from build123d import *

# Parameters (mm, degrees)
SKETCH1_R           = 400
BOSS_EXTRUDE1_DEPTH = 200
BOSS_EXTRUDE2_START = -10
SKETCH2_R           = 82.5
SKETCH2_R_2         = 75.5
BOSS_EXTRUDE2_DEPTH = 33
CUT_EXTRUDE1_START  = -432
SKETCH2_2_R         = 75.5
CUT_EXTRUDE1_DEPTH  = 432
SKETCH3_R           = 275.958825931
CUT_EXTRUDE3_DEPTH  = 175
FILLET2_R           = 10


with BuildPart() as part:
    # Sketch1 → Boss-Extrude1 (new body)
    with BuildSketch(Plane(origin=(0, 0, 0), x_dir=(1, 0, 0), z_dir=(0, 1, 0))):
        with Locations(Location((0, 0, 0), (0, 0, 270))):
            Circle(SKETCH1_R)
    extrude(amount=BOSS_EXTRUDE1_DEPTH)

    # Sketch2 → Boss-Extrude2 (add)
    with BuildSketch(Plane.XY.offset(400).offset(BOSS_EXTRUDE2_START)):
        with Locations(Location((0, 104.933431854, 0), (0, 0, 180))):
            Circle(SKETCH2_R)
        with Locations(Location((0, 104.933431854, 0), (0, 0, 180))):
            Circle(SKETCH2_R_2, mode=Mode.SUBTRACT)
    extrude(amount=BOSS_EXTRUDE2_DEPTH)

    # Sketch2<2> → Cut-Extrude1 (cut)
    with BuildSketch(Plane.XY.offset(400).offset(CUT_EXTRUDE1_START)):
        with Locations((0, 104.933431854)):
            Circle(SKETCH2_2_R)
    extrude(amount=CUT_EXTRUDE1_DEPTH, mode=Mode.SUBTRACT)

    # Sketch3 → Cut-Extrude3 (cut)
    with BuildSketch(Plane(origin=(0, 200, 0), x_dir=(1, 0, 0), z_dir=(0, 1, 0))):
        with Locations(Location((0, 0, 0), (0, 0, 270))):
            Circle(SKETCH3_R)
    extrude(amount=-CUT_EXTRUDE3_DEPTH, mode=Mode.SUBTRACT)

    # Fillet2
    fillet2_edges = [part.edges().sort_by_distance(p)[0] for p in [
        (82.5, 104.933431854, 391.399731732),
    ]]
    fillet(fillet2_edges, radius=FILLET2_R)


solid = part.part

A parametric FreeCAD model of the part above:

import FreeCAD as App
import Part
import Sketcher
from FreeCAD import Vector
Q = App.Units.Quantity


def edges_at(feature, points):
    """Names of the edges that pass closest to the given points."""
    edges = feature.Shape.Edges
    near = lambda p: min(range(len(edges)), key=lambda i: edges[i].distToShape(Part.Vertex(*p))[0])
    return sorted({f"Edge{near(p) + 1}" for p in points})

doc = App.newDocument("Part")
body = doc.addObject("PartDesign::Body", "Body")

sketch1 = body.newObject("Sketcher::SketchObject", "Sketch")
sketch1.AttachmentSupport = (doc.getObject("XZ_Plane"), [""])
sketch1.MapMode = "FlatFace"
sketch1.addGeometry(Part.Circle(Vector(0, 0, 0), Vector(0, 0, 1), 400), False)
sketch1.addConstraint(Sketcher.Constraint("Coincident", 0, 3, -1, 1))
sketch1.addConstraint(Sketcher.Constraint("Diameter", 0, Q("800 mm")))
pad1 = body.newObject("PartDesign::Pad", "Pad")
pad1.Profile = sketch1
pad1.Length = 200
pad1.Reversed = True

sketch2 = body.newObject("Sketcher::SketchObject", "Sketch001")
sketch2.AttachmentSupport = (doc.getObject("XY_Plane"), [""])
sketch2.MapMode = "FlatFace"
sketch2.AttachmentOffset = App.Placement(Vector(0, 0, 390), App.Rotation())
sketch2.addGeometry(Part.Circle(Vector(0, 105, 0), Vector(0, 0, 1), 82), False)
sketch2.addGeometry(Part.Circle(Vector(0, 105, 0), Vector(0, 0, 1), 76), False)
sketch2.addConstraint(Sketcher.Constraint("Coincident", 1, 3, 0, 3))
sketch2.addConstraint(Sketcher.Constraint("PointOnObject", 0, 3, -2))
sketch2.addConstraint(Sketcher.Constraint("Diameter", 0, Q("165 mm")))
sketch2.addConstraint(Sketcher.Constraint("Diameter", 1, Q("151 mm")))
sketch2.addConstraint(Sketcher.Constraint("DistanceY", -1, 1, 0, 3, Q("104.933432 mm")))
pad2 = body.newObject("PartDesign::Pad", "Pad001")
pad2.Profile = sketch2
pad2.Length = 33

sketch3 = body.newObject("Sketcher::SketchObject", "Sketch002")
sketch3.AttachmentSupport = (doc.getObject("XY_Plane"), [""])
sketch3.MapMode = "FlatFace"
sketch3.AttachmentOffset = App.Placement(Vector(0, 0, -32), App.Rotation())
sketch3.addGeometry(Part.Circle(Vector(0, 105, 0), Vector(0, 0, 1), 76), False)
sketch3.addConstraint(Sketcher.Constraint("PointOnObject", 0, 3, -2))
sketch3.addConstraint(Sketcher.Constraint("Diameter", 0, Q("151 mm")))
sketch3.addConstraint(Sketcher.Constraint("DistanceY", -1, 1, 0, 3, Q("104.933432 mm")))
pocket1 = body.newObject("PartDesign::Pocket", "Pocket")
pocket1.Profile = sketch3
pocket1.Length = 432
pocket1.Reversed = True

sketch4 = body.newObject("Sketcher::SketchObject", "Sketch003")
sketch4.AttachmentSupport = (doc.getObject("XZ_Plane"), [""])
sketch4.MapMode = "FlatFace"
sketch4.AttachmentOffset = App.Placement(Vector(0, 0, -200), App.Rotation())
sketch4.addGeometry(Part.Circle(Vector(0, 0, 0), Vector(0, 0, 1), 276), False)
sketch4.addConstraint(Sketcher.Constraint("Coincident", 0, 3, -1, 1))
sketch4.addConstraint(Sketcher.Constraint("Diameter", 0, Q("551.917652 mm")))
pocket2 = body.newObject("PartDesign::Pocket", "Pocket001")
pocket2.Profile = sketch4
pocket2.Length = 175
pocket2.Reversed = True
doc.recompute()

fillet = body.newObject("PartDesign::Fillet", "Fillet")
fillet.Base = (pocket2, edges_at(pocket2, [(82.5, 104.933, 391.4)]))
fillet.Radius = 10

doc.recompute()
